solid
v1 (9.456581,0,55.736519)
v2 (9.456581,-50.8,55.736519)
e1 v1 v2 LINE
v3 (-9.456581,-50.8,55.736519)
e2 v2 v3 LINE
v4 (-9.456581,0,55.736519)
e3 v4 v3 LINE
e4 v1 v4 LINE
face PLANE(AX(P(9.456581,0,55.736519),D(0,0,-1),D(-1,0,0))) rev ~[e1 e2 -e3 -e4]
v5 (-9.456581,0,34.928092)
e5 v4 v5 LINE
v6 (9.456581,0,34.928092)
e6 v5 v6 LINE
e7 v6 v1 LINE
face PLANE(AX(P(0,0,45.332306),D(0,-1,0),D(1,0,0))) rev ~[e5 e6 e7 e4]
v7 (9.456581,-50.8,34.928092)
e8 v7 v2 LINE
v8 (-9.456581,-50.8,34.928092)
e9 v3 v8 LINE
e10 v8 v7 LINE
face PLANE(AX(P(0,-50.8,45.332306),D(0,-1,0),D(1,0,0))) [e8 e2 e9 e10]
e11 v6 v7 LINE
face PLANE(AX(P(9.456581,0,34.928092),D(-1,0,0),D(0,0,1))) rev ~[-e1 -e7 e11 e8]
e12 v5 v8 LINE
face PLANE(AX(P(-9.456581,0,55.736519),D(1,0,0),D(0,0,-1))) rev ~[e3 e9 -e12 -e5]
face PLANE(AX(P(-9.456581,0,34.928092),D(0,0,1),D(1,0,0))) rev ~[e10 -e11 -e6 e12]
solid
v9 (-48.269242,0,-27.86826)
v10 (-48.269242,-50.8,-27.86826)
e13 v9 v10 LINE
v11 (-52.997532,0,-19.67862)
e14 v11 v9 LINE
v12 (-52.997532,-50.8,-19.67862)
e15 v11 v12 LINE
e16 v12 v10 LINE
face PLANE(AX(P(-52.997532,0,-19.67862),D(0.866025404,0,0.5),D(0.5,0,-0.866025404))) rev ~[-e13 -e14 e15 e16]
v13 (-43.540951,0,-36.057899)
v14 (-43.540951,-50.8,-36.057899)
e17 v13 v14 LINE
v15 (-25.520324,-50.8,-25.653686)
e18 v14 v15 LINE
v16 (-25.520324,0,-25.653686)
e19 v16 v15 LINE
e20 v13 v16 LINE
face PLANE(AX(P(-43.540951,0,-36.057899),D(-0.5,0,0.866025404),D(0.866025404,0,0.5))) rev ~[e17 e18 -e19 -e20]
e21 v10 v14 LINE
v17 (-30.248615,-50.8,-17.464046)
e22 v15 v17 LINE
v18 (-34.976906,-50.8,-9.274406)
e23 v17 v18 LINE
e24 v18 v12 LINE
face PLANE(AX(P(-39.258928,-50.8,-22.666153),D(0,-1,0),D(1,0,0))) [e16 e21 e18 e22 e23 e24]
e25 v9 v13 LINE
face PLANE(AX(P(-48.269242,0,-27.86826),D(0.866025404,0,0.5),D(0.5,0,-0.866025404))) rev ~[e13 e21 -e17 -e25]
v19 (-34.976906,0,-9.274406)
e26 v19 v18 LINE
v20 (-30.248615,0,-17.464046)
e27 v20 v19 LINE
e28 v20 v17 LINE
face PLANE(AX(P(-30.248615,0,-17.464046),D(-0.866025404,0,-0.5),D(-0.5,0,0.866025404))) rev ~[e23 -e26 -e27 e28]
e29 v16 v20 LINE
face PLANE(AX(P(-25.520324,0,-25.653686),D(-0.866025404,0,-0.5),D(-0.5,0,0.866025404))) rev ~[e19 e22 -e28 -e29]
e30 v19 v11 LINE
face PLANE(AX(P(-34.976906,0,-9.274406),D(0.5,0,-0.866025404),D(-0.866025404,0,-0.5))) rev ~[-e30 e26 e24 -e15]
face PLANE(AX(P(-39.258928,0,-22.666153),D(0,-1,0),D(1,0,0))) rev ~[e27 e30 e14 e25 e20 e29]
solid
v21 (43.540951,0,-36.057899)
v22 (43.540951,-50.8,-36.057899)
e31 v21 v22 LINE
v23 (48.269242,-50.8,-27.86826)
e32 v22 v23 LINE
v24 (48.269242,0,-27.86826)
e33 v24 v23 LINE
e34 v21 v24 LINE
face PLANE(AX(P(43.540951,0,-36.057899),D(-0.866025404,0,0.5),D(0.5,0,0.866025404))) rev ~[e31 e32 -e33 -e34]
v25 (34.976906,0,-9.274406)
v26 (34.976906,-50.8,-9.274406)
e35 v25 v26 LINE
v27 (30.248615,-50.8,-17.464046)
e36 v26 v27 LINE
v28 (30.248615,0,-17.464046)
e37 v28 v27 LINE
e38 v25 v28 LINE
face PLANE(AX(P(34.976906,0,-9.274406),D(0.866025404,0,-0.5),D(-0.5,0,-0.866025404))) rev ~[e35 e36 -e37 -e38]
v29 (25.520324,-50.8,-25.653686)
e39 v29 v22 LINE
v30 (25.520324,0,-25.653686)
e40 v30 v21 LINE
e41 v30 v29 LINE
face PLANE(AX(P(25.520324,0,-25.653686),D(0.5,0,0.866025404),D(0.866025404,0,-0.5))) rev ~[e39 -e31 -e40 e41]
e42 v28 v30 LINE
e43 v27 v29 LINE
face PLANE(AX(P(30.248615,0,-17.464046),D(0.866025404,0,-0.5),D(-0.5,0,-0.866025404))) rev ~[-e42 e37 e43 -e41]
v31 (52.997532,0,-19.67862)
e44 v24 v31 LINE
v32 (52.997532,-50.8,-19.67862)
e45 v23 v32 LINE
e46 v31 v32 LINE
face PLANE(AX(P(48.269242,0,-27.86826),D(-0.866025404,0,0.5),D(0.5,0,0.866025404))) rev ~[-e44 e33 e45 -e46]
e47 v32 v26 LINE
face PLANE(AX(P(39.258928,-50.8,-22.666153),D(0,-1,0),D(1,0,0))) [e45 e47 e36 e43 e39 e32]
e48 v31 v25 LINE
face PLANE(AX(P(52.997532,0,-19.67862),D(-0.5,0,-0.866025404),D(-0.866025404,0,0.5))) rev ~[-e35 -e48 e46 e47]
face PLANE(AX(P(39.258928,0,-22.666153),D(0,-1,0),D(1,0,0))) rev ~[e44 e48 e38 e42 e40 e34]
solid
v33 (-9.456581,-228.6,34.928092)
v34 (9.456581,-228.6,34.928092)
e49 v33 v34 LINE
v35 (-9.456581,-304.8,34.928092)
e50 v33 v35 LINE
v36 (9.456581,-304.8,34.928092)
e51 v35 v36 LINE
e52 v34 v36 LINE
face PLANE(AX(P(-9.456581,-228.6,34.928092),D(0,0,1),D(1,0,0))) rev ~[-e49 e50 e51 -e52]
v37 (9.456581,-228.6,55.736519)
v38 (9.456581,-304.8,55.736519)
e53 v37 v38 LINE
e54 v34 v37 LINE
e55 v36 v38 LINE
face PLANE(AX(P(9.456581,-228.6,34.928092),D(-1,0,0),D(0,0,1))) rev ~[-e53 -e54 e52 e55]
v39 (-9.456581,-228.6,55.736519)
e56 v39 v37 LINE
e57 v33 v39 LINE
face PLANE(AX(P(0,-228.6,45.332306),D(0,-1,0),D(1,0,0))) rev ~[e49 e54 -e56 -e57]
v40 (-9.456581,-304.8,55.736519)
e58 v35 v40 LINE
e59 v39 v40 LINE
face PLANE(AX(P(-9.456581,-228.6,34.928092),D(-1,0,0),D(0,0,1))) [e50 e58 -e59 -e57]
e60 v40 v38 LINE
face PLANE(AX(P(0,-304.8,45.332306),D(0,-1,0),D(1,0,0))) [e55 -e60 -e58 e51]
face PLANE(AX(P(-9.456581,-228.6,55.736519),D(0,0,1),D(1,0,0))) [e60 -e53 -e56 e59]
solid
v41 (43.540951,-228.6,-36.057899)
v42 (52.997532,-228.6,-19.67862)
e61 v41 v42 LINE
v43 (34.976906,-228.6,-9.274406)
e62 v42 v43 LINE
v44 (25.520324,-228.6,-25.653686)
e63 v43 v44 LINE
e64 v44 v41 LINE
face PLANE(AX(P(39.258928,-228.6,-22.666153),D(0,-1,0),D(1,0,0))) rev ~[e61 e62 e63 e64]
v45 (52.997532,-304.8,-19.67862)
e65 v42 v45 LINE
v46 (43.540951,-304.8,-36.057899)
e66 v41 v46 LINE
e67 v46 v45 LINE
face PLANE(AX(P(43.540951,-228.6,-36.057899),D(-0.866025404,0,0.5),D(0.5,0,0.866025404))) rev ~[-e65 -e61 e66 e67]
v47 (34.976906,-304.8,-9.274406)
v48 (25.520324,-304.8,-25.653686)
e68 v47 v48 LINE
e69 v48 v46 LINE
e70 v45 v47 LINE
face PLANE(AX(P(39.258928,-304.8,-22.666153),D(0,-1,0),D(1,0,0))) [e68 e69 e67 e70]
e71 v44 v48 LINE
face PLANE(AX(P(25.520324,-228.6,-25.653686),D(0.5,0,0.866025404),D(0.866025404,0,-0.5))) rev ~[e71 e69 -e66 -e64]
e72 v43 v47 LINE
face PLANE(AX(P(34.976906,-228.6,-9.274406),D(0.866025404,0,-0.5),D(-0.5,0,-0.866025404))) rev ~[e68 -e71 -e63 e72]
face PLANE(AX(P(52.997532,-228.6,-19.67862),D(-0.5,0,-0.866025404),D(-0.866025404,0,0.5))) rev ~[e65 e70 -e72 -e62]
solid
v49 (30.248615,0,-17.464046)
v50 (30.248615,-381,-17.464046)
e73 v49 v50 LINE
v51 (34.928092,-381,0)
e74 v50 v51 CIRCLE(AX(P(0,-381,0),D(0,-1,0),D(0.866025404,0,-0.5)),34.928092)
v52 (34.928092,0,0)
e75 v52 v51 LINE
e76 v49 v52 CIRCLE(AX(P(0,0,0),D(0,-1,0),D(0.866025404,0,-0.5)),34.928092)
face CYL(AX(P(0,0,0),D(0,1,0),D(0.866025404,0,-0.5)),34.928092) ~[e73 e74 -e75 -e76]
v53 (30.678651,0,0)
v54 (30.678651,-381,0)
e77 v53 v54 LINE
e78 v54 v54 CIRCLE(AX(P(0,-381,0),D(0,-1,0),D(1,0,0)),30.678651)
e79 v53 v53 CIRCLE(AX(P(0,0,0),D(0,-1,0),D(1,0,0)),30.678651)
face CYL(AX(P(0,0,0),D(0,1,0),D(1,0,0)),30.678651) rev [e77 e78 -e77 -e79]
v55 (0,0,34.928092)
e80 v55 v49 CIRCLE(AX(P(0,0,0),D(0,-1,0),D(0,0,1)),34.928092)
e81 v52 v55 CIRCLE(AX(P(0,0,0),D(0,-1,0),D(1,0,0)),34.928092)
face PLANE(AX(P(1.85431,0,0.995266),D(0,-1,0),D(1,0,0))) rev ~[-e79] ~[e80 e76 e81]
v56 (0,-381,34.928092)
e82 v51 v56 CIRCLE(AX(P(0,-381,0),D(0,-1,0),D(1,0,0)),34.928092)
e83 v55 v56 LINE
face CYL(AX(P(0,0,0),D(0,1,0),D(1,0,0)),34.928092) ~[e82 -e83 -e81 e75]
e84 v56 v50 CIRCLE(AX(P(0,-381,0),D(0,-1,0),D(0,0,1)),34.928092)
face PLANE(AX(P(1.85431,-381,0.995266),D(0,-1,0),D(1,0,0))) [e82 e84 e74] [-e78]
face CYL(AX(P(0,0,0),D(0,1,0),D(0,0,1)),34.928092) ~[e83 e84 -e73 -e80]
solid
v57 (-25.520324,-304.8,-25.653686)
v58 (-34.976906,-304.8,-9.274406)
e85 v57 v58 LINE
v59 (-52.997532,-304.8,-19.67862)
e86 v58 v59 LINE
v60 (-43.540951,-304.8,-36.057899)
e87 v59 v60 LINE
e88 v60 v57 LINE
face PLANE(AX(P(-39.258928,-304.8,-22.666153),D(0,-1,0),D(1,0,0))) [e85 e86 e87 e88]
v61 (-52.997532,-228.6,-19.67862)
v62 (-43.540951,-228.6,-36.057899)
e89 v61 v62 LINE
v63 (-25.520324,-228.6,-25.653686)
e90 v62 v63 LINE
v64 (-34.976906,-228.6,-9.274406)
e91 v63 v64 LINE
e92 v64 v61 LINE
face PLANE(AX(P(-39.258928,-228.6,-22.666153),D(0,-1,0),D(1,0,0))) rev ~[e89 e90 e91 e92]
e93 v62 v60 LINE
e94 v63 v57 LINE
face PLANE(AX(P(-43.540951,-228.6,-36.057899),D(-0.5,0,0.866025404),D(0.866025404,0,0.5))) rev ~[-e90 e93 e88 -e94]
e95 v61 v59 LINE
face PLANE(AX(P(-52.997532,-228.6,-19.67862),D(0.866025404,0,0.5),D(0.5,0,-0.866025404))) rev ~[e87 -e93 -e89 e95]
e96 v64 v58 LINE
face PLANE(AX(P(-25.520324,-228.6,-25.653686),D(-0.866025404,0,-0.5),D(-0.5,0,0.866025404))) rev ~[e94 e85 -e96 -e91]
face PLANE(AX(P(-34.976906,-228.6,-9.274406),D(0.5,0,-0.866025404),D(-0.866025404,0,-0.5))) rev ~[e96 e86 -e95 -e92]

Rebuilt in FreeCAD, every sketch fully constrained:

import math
import FreeCAD as App
import Part
import Sketcher
Q = App.Units.Quantity


def add_polygon(sketch, points):
    """Adds a closed chain of lines whose ends are joined by coincident constraints."""
    first, n = sketch.GeometryCount, len(points)
    for a, b in zip(points, points[1:] + points[:1]):
        sketch.addGeometry(Part.LineSegment(App.Vector(*a, 0), App.Vector(*b, 0)), False)
    for i in range(n):
        sketch.addConstraint(Sketcher.Constraint("Coincident", first + i, 2, first + (i + 1) % n, 1))

doc = App.newDocument("Part")
body = doc.addObject("PartDesign::Body", "Body")

sketch1 = doc.addObject("Sketcher::SketchObject", "Sketch")
body.addObject(sketch1)
sketch1.AttachmentSupport = (doc.XZ_Plane, [""])
sketch1.MapMode = "FlatFace"
sketch1.addGeometry(Part.ArcOfCircle(Part.Circle(App.Vector(0, 0, 0), App.Vector(0, 0, 1), 35), math.radians(-30), math.radians(0)), False)
sketch1.addGeometry(Part.ArcOfCircle(Part.Circle(App.Vector(0, 0, 0), App.Vector(0, 0, 1), 35), math.radians(0), math.radians(90)), False)
sketch1.addGeometry(Part.ArcOfCircle(Part.Circle(App.Vector(0, 0, 0), App.Vector(0, 0, 1), 35), math.radians(90), math.radians(330)), False)
sketch1.addGeometry(Part.Circle(App.Vector(0, 0, 0), App.Vector(0, 0, 1), 31), False)
sketch1.addConstraint(Sketcher.Constraint("Tangent", 0, 2, 1, 1))
sketch1.addConstraint(Sketcher.Constraint("Tangent", 1, 2, 2, 1))
sketch1.addConstraint(Sketcher.Constraint("Tangent", 2, 2, 0, 1))
sketch1.addConstraint(Sketcher.Constraint("Coincident", 0, 3, -1, 1))
sketch1.addConstraint(Sketcher.Constraint("Coincident", 3, 3, -1, 1))
sketch1.addConstraint(Sketcher.Constraint("PointOnObject", 0, 2, -1))
sketch1.addConstraint(Sketcher.Constraint("PointOnObject", 1, 2, -2))
sketch1.addConstraint(Sketcher.Constraint("Diameter", 3, 61.357301))
sketch1.addConstraint(Sketcher.Constraint("Radius", 0, 34.928092))
sketch1.addConstraint(Sketcher.Constraint("DistanceX", -1, 1, 2, 2, 30.248615))
pad1 = doc.addObject("PartDesign::Pad", "Pad")
body.addObject(pad1)
pad1.Profile = sketch1
pad1.Length = Q("15 in")
body2 = doc.addObject("PartDesign::Body", "Body001")

sketch2 = doc.addObject("Sketcher::SketchObject", "Sketch001")
body2.addObject(sketch2)
sketch2.AttachmentSupport = (doc.getObject("XZ_Plane001"), [""])
sketch2.MapMode = "FlatFace"
add_polygon(sketch2, [(-9, 35), (9, 35), (9, 56), (-9, 56)])
sketch2.addConstraint(Sketcher.Constraint("Horizontal", 0))
sketch2.addConstraint(Sketcher.Constraint("Vertical", 1))
sketch2.addConstraint(Sketcher.Constraint("Horizontal", 2))
sketch2.addConstraint(Sketcher.Constraint("Vertical", 3))
sketch2.addConstraint(Sketcher.Constraint("DistanceX", 0, 1, 0, 2, 18.913163))
sketch2.addConstraint(Sketcher.Constraint("DistanceY", 1, 1, 1, 2, 20.808428))
sketch2.addConstraint(Sketcher.Constraint("DistanceX", -1, 1, 0, 2, 9.456581))
sketch2.addConstraint(Sketcher.Constraint("DistanceY", -1, 1, 0, 2, 34.928092))
pad2 = doc.addObject("PartDesign::Pad", "Pad001")
body2.addObject(pad2)
pad2.Profile = sketch2
pad2.Length = Q("2 in")
body3 = doc.addObject("PartDesign::Body", "Body002")

sketch3 = doc.addObject("Sketcher::SketchObject", "Sketch002")
body3.addObject(sketch3)
sketch3.AttachmentSupport = (doc.getObject("XZ_Plane002"), [""])
sketch3.MapMode = "FlatFace"
add_polygon(sketch3, [(35, -9), (30, -17), (26, -26), (44, -36), (48, -28), (53, -20)])
sketch3.addConstraint(Sketcher.Constraint("Parallel", 0, 1))
sketch3.addConstraint(Sketcher.Constraint("Perpendicular", 1, 2))
sketch3.addConstraint(Sketcher.Constraint("Perpendicular", 2, 3))
sketch3.addConstraint(Sketcher.Constraint("Parallel", 3, 4))
sketch3.addConstraint(Sketcher.Constraint("Perpendicular", 4, 5))
sketch3.addConstraint(Sketcher.Constraint("Equal", 0, 1))
sketch3.addConstraint(Sketcher.Constraint("Equal", 1, 3))
sketch3.addConstraint(Sketcher.Constraint("Angle", 0, Q("-120 deg")))
sketch3.addConstraint(Sketcher.Constraint("DistanceY", 2, 2, -1, 1, 36.057899))
sketch3.addConstraint(Sketcher.Constraint("Distance", 0, 9.456581))
sketch3.addConstraint(Sketcher.Constraint("DistanceX", -1, 1, 2, 2, 43.540951))
sketch3.addConstraint(Sketcher.Constraint("DistanceX", 1, 2, 4, 2, 27.477208))
pad3 = doc.addObject("PartDesign::Pad", "Pad002")
body3.addObject(pad3)
pad3.Profile = sketch3
pad3.Length = Q("2 in")
body4 = doc.addObject("PartDesign::Body", "Body003")

sketch4 = doc.addObject("Sketcher::SketchObject", "Sketch003")
body4.addObject(sketch4)
sketch4.AttachmentSupport = (doc.getObject("XZ_Plane003"), [""])
sketch4.MapMode = "FlatFace"
add_polygon(sketch4, [(-26, -26), (-30, -17), (-35, -9), (-53, -20), (-48, -28), (-44, -36)])
sketch4.addConstraint(Sketcher.Constraint("Parallel", 0, 1))
sketch4.addConstraint(Sketcher.Constraint("Perpendicular", 1, 2))
sketch4.addConstraint(Sketcher.Constraint("Perpendicular", 2, 3))
sketch4.addConstraint(Sketcher.Constraint("Parallel", 3, 4))
sketch4.addConstraint(Sketcher.Constraint("Perpendicular", 4, 5))
sketch4.addConstraint(Sketcher.Constraint("Equal", 0, 1))
sketch4.addConstraint(Sketcher.Constraint("Equal", 1, 3))
sketch4.addConstraint(Sketcher.Constraint("Angle", 0, Q("120 deg")))
sketch4.addConstraint(Sketcher.Constraint("DistanceY", 4, 2, -1, 1, 36.057899))
sketch4.addConstraint(Sketcher.Constraint("Distance", 0, 9.456581))
sketch4.addConstraint(Sketcher.Constraint("DistanceX", 3, 2, -1, 1, 48.269242))
sketch4.addConstraint(Sketcher.Constraint("DistanceX", 2, 2, 5, 2, 27.477208))
pad4 = doc.addObject("PartDesign::Pad", "Pad003")
body4.addObject(pad4)
pad4.Profile = sketch4
pad4.Length = Q("2 in")
body5 = doc.addObject("PartDesign::Body", "Body004")

sketch5 = doc.addObject("Sketcher::SketchObject", "Sketch004")
body5.addObject(sketch5)
sketch5.AttachmentSupport = (doc.getObject("XZ_Plane004"), [""])
sketch5.MapMode = "FlatFace"
sketch5.AttachmentOffset = App.Placement(App.Vector(0, 0, 9 * 25.4), App.Rotation())
add_polygon(sketch5, [(-9, 56), (-9, 35), (9, 35), (9, 56)])
sketch5.addConstraint(Sketcher.Constraint("Vertical", 0))
sketch5.addConstraint(Sketcher.Constraint("Horizontal", 1))
sketch5.addConstraint(Sketcher.Constraint("Vertical", 2))
sketch5.addConstraint(Sketcher.Constraint("Horizontal", 3))
sketch5.addConstraint(Sketcher.Constraint("DistanceX", 1, 1, 1, 2, 18.913163))
sketch5.addConstraint(Sketcher.Constraint("DistanceY", 0, 2, 0, 1, 20.808428))
sketch5.addConstraint(Sketcher.Constraint("DistanceX", 0, 2, -1, 1, 9.456581))
sketch5.addConstraint(Sketcher.Constraint("DistanceY", -1, 1, 0, 2, 34.928092))
pad5 = doc.addObject("PartDesign::Pad", "Pad004")
body5.addObject(pad5)
pad5.Profile = sketch5
pad5.Length = Q("3 in")
body6 = doc.addObject("PartDesign::Body", "Body005")

sketch6 = doc.addObject("Sketcher::SketchObject", "Sketch005")
body6.addObject(sketch6)
sketch6.AttachmentSupport = (doc.getObject("XZ_Plane005"), [""])
sketch6.MapMode = "FlatFace"
sketch6.AttachmentOffset = App.Placement(App.Vector(0, 0, 9 * 25.4), App.Rotation())
add_polygon(sketch6, [(-44, -36), (-26, -26), (-35, -9), (-53, -20)])
sketch6.addConstraint(Sketcher.Constraint("Perpendicular", 0, 1))
sketch6.addConstraint(Sketcher.Constraint("Perpendicular", 1, 2))
sketch6.addConstraint(Sketcher.Constraint("Perpendicular", 2, 3))
sketch6.addConstraint(Sketcher.Constraint("Angle", 0, Q("30 deg")))
sketch6.addConstraint(Sketcher.Constraint("DistanceY", 3, 2, -1, 1, 36.057899))
sketch6.addConstraint(Sketcher.Constraint("DistanceY", 2, 2, -1, 1, 19.67862))
sketch6.addConstraint(Sketcher.Constraint("DistanceX", 3, 2, -1, 1, 43.540951))
sketch6.addConstraint(Sketcher.Constraint("DistanceX", 2, 2, 0, 2, 27.477208))
pad6 = doc.addObject("PartDesign::Pad", "Pad005")
body6.addObject(pad6)
pad6.Profile = sketch6
pad6.Length = Q("3 in")
body7 = doc.addObject("PartDesign::Body", "Body006")

sketch7 = doc.addObject("Sketcher::SketchObject", "Sketch006")
body7.addObject(sketch7)
sketch7.AttachmentSupport = (doc.getObject("XZ_Plane006"), [""])
sketch7.MapMode = "FlatFace"
sketch7.AttachmentOffset = App.Placement(App.Vector(0, 0, 9 * 25.4), App.Rotation())
add_polygon(sketch7, [(53, -20), (35, -9), (26, -26), (44, -36)])
sketch7.addConstraint(Sketcher.Constraint("Perpendicular", 0, 1))
sketch7.addConstraint(Sketcher.Constraint("Perpendicular", 1, 2))
sketch7.addConstraint(Sketcher.Constraint("Perpendicular", 2, 3))
sketch7.addConstraint(Sketcher.Constraint("Angle", 0, Q("150 deg")))
sketch7.addConstraint(Sketcher.Constraint("DistanceY", 2, 2, -1, 1, 36.057899))
sketch7.addConstraint(Sketcher.Constraint("DistanceX", -1, 1, 2, 2, 43.540951))
sketch7.addConstraint(Sketcher.Constraint("DistanceY", 3, 2, -1, 1, 19.67862))
sketch7.addConstraint(Sketcher.Constraint("DistanceX", 1, 2, 3, 2, 27.477208))
pad7 = doc.addObject("PartDesign::Pad", "Pad006")
body7.addObject(pad7)
pad7.Profile = sketch7
pad7.Length = Q("3 in")

doc.recompute()
